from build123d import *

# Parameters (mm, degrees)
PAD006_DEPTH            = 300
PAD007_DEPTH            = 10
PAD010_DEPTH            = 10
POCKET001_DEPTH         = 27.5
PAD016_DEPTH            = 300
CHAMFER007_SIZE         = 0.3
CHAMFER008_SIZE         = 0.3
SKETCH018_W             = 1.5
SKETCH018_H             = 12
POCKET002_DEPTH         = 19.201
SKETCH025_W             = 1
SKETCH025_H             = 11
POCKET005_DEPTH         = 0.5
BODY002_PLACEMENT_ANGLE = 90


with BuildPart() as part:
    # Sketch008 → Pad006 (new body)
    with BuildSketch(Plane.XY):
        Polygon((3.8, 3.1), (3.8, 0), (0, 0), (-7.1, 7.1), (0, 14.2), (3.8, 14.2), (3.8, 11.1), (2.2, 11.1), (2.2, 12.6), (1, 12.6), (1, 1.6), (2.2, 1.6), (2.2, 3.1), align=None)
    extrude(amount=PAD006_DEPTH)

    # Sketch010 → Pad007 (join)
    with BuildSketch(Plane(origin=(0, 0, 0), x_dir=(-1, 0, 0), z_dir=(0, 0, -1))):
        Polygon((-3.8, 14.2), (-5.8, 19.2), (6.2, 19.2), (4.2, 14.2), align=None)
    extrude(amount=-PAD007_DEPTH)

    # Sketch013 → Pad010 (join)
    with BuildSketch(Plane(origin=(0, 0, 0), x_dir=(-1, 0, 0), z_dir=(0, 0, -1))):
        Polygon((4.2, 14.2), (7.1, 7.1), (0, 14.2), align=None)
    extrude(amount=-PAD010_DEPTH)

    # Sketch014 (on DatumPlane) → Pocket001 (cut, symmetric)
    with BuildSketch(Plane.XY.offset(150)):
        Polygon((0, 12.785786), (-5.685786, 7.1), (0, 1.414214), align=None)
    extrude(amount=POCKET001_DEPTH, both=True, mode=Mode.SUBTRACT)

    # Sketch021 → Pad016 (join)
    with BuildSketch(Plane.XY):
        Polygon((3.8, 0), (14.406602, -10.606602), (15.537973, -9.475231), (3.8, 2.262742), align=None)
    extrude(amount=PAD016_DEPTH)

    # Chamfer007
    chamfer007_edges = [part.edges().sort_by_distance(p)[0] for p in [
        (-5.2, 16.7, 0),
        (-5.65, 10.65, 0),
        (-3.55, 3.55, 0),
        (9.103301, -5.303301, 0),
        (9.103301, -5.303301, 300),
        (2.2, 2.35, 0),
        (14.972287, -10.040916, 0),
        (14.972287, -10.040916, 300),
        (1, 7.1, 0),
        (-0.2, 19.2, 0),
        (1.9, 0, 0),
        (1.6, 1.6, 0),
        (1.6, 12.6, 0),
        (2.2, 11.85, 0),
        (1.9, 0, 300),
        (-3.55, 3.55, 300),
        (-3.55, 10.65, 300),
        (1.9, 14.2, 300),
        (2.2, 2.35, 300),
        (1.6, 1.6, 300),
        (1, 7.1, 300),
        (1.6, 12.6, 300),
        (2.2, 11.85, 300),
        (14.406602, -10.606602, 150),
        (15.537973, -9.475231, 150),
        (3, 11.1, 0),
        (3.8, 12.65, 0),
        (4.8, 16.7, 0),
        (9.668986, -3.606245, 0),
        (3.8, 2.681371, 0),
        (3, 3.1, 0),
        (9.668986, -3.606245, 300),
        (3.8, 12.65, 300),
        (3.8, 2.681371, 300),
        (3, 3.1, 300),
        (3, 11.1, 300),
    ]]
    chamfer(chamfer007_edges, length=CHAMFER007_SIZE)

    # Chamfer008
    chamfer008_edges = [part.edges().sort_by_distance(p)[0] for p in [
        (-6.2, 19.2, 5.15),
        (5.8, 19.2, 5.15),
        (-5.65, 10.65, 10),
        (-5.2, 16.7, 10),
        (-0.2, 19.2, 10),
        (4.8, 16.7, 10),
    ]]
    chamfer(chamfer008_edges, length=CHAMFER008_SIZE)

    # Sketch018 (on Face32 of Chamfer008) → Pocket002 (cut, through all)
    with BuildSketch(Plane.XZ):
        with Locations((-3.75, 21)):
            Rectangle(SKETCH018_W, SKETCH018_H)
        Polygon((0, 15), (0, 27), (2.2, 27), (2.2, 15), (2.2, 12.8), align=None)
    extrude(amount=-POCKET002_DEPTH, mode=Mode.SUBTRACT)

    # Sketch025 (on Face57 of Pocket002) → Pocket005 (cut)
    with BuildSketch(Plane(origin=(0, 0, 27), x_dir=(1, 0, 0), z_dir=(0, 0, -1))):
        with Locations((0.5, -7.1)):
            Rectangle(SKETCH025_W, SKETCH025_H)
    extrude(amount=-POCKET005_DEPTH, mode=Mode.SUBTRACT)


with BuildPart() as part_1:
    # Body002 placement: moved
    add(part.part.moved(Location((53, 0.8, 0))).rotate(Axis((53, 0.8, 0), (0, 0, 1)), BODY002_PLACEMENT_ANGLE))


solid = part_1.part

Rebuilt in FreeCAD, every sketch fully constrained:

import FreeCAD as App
import Part
import Sketcher
from FreeCAD import Vector
Q = App.Units.Quantity


def edges_at(feature, points):
    """Names of the edges that pass closest to the given points."""
    edges = feature.Shape.Edges
    near = lambda p: min(range(len(edges)), key=lambda i: edges[i].distToShape(Part.Vertex(*p))[0])
    return sorted({f"Edge{near(p) + 1}" for p in points})


def add_polygon(sketch, points):
    """Adds a closed chain of lines whose ends are joined by coincident constraints."""
    first, n = sketch.GeometryCount, len(points)
    for a, b in zip(points, points[1:] + points[:1]):
        sketch.addGeometry(Part.LineSegment(App.Vector(*a, 0), App.Vector(*b, 0)), False)
    for i in range(n):
        sketch.addConstraint(Sketcher.Constraint("Coincident", first + i, 2, first + (i + 1) % n, 1))

doc = App.newDocument("Part")
body = doc.addObject("PartDesign::Body", "Body")

# Sketch on XY plane
sketch1 = body.newObject("Sketcher::SketchObject", "Sketch")
sketch1.AttachmentSupport = (doc.getObject("XY_Plane"), [""])
sketch1.MapMode = "FlatFace"
add_polygon(sketch1, [(3.8, 0), (3.8, 3.1), (2.2, 3.1), (2.2, 1.6), (1, 1.6), (1, 12.6), (2.2, 12.6), (2.2, 11.1), (3.8, 11.1), (3.8, 14.2), (0, 14.2), (-7.1, 7.1), (0, 0)])  # lines 0-12
sketch1.addConstraint(Sketcher.Constraint("Vertical", 0))
sketch1.addConstraint(Sketcher.Constraint("Horizontal", 1))
sketch1.addConstraint(Sketcher.Constraint("Vertical", 2))
sketch1.addConstraint(Sketcher.Constraint("Horizontal", 3))
sketch1.addConstraint(Sketcher.Constraint("Vertical", 4))
sketch1.addConstraint(Sketcher.Constraint("Horizontal", 5))
sketch1.addConstraint(Sketcher.Constraint("Vertical", 6))
sketch1.addConstraint(Sketcher.Constraint("Horizontal", 7))
sketch1.addConstraint(Sketcher.Constraint("Vertical", 8))
sketch1.addConstraint(Sketcher.Constraint("Horizontal", 9))
sketch1.addConstraint(Sketcher.Constraint("Horizontal", 12))
sketch1.addConstraint(Sketcher.Constraint("Coincident", 11, 2, -1, 1))
sketch1.addConstraint(Sketcher.Constraint("PointOnObject", 9, 2, -2))
sketch1.addConstraint(Sketcher.Constraint("Perpendicular", 10, 11))
sketch1.addConstraint(Sketcher.Constraint("Vertical", 2, 2, 5, 2))
sketch1.addConstraint(Sketcher.Constraint("Vertical", 0, 2, 7, 2))
sketch1.addConstraint(Sketcher.Constraint("Equal", 2, 6))
sketch1.addConstraint(Sketcher.Constraint("Equal", 0, 8))
sketch1.addConstraint(Sketcher.Constraint("Equal", 10, 11))
sketch1.addConstraint(Sketcher.Constraint("DistanceY", 4, 1, 4, 2, 11.0))
sketch1.addConstraint(Sketcher.Constraint("DistanceX", 1, 2, 1, 1, 1.6))
sketch1.addConstraint(Sketcher.Constraint("DistanceX", 3, 2, 3, 1, 1.2))
sketch1.addConstraint(Sketcher.Constraint("DistanceX", 9, 2, 9, 1, 3.8))
sketch1.addConstraint(Sketcher.Constraint("DistanceY", 0, 1, 0, 2, 3.1))
sketch1.addConstraint(Sketcher.Constraint("DistanceY", 2, 2, 2, 1, 1.5))
pad1 = body.newObject("PartDesign::Pad", "Pad")
pad1.Profile = sketch1
pad1.Length = 300

# Sketch on XY plane
sketch2 = body.newObject("Sketcher::SketchObject", "Sketch001")
sketch2.AttachmentSupport = (doc.getObject("XY_Plane"), [""])
sketch2.MapMode = "FlatFace"
add_polygon(sketch2, [(5.8, 19.2), (3.8, 14.2), (-4.2, 14.2), (-6.2, 19.2)])  # lines 0-3
sketch2.addConstraint(Sketcher.Constraint("Horizontal", 1))
sketch2.addConstraint(Sketcher.Constraint("Horizontal", 3))
sketch2.addConstraint(Sketcher.Constraint("Equal", 0, 2))
sketch2.addConstraint(Sketcher.Constraint("DistanceX", 1, 2, 1, 1, 8.0))
sketch2.addConstraint(Sketcher.Constraint("DistanceX", 3, 1, 3, 2, 12.0))
sketch2.addConstraint(Sketcher.Constraint("DistanceY", 1, 2, 2, 2, 5.0))
sketch2.addConstraint(Sketcher.Constraint("DistanceX", -1, 1, 0, 2, 3.8))
sketch2.addConstraint(Sketcher.Constraint("DistanceY", -1, 1, 0, 2, 14.2))
pad2 = body.newObject("PartDesign::Pad", "Pad001")
pad2.Profile = sketch2
pad2.Length = 10

# Sketch on XY plane
sketch3 = body.newObject("Sketcher::SketchObject", "Sketch002")
sketch3.AttachmentSupport = (doc.getObject("XY_Plane"), [""])
sketch3.MapMode = "FlatFace"
add_polygon(sketch3, [(-7.1, 7.1), (-4.2, 14.2), (0, 14.2)])  # lines 0-2
sketch3.addConstraint(Sketcher.Constraint("Horizontal", 1))
sketch3.addConstraint(Sketcher.Constraint("PointOnObject", 1, 2, -2))
sketch3.addConstraint(Sketcher.Constraint("Angle", 2, Q("-135 deg")))
sketch3.addConstraint(Sketcher.Constraint("DistanceX", 1, 1, 1, 2, 4.2))
sketch3.addConstraint(Sketcher.Constraint("DistanceY", -1, 1, 0, 2, 14.2))
sketch3.addConstraint(Sketcher.Constraint("DistanceX", 2, 2, -1, 1, 7.1))
pad3 = body.newObject("PartDesign::Pad", "Pad002")
pad3.Profile = sketch3
pad3.Length = 10

# Sketch on XY plane
sketch4 = body.newObject("Sketcher::SketchObject", "Sketch003")
sketch4.AttachmentSupport = (doc.getObject("XY_Plane"), [""])
sketch4.MapMode = "FlatFace"
sketch4.AttachmentOffset = App.Placement(Vector(0, 0, 150), App.Rotation())
add_polygon(sketch4, [(0, 12.785786), (-5.685786, 7.1), (0, 1.414214)])  # lines 0-2
sketch4.addConstraint(Sketcher.Constraint("Vertical", 2))
sketch4.addConstraint(Sketcher.Constraint("PointOnObject", 1, 2, -2))
sketch4.addConstraint(Sketcher.Constraint("Perpendicular", 0, 1))
sketch4.addConstraint(Sketcher.Constraint("Equal", 0, 1))
sketch4.addConstraint(Sketcher.Constraint("DistanceY", -1, 1, 0, 2, 7.1))
sketch4.addConstraint(Sketcher.Constraint("DistanceY", 2, 1, 2, 2, 11.371572))
pocket1 = body.newObject("PartDesign::Pocket", "Pocket")
pocket1.Profile = sketch4
pocket1.Length = 55
pocket1.Midplane = True

# Sketch on XY plane
sketch5 = body.newObject("Sketcher::SketchObject", "Sketch004")
sketch5.AttachmentSupport = (doc.getObject("XY_Plane"), [""])
sketch5.MapMode = "FlatFace"
add_polygon(sketch5, [(3.8, 0), (14.406602, -10.606602), (15.537973, -9.475231), (3.8, 2.262742)])  # lines 0-3
sketch5.addConstraint(Sketcher.Constraint("Vertical", 3))
sketch5.addConstraint(Sketcher.Constraint("PointOnObject", 3, 2, -1))
sketch5.addConstraint(Sketcher.Constraint("Perpendicular", 0, 1))
sketch5.addConstraint(Sketcher.Constraint("Perpendicular", 1, 2))
sketch5.addConstraint(Sketcher.Constraint("Angle", 0, Q("-45 deg")))
sketch5.addConstraint(Sketcher.Constraint("Distance", 0, 15.0))
sketch5.addConstraint(Sketcher.Constraint("Distance", 1, 1.6))
sketch5.addConstraint(Sketcher.Constraint("DistanceX", -1, 1, 2, 2, 3.8))
pad4 = body.newObject("PartDesign::Pad", "Pad003")
pad4.Profile = sketch5
pad4.Length = 300
doc.recompute()

chamfer = body.newObject("PartDesign::Chamfer", "Chamfer")
chamfer.Base = (pad4, edges_at(pad4, [
    (-5.2, 16.7, 0),
    (-5.65, 10.65, 0),
    (-3.55, 3.55, 0),
    (9.103, -5.303, 0),
    (9.103, -5.303, 300),
    (2.2, 2.35, 0),
    (14.972, -10.041, 0),
    (14.972, -10.041, 300),
    (1, 7.1, 0),
    (-0.2, 19.2, 0),
    (1.9, 0, 0),
    (1.6, 1.6, 0),
    (1.6, 12.6, 0),
    (2.2, 11.85, 0),
    (1.9, 0, 300),
    (-3.55, 3.55, 300),
    (-3.55, 10.65, 300),
    (1.9, 14.2, 300),
    (2.2, 2.35, 300),
    (1.6, 1.6, 300),
    (1, 7.1, 300),
    (1.6, 12.6, 300),
    (2.2, 11.85, 300),
    (14.407, -10.607, 150),
    (15.538, -9.475, 150),
    (3, 11.1, 0),
    (3.8, 12.65, 0),
    (4.8, 16.7, 0),
    (9.669, -3.606, 0),
    (3.8, 2.681, 0),
    (3, 3.1, 0),
    (9.669, -3.606, 300),
    (3.8, 12.65, 300),
    (3.8, 2.681, 300),
    (3, 3.1, 300),
    (3, 11.1, 300),
]))
chamfer.Size = 0.3
doc.recompute()

chamfer2 = body.newObject("PartDesign::Chamfer", "Chamfer001")
chamfer2.Base = (chamfer, edges_at(chamfer, [
    (-6.2, 19.2, 5.15),
    (5.8, 19.2, 5.15),
    (-5.65, 10.65, 10),
    (-5.2, 16.7, 10),
    (-0.2, 19.2, 10),
    (4.8, 16.7, 10),
]))
chamfer2.Size = 0.3

# Sketch on XZ plane
sketch6 = body.newObject("Sketcher::SketchObject", "Sketch005")
sketch6.AttachmentSupport = (doc.getObject("XZ_Plane"), [""])
sketch6.MapMode = "FlatFace"
add_polygon(sketch6, [(-4.5, 27), (-4.5, 15), (-3, 15), (-3, 27)])  # lines 0-3
add_polygon(sketch6, [(0, 27), (0, 15), (2.2, 12.8), (2.2, 27)])  # lines 4-7
sketch6.addConstraint(Sketcher.Constraint("Vertical", 0))
sketch6.addConstraint(Sketcher.Constraint("Horizontal", 1))
sketch6.addConstraint(Sketcher.Constraint("Vertical", 2))
sketch6.addConstraint(Sketcher.Constraint("Horizontal", 3))
sketch6.addConstraint(Sketcher.Constraint("Vertical", 4))
sketch6.addConstraint(Sketcher.Constraint("Vertical", 6))
sketch6.addConstraint(Sketcher.Constraint("Horizontal", 7))
sketch6.addConstraint(Sketcher.Constraint("PointOnObject", 4, 2, -2))
sketch6.addConstraint(Sketcher.Constraint("Horizontal", 1, 2, 4, 2))
sketch6.addConstraint(Sketcher.Constraint("Horizontal", 3, 2, 6, 2))
sketch6.addConstraint(Sketcher.Constraint("DistanceY", 0, 2, 0, 1, 12.0))
sketch6.addConstraint(Sketcher.Constraint("Angle", 5, Q("-45 deg")))
sketch6.addConstraint(Sketcher.Constraint("DistanceX", 1, 1, 1, 2, 1.5))
sketch6.addConstraint(Sketcher.Constraint("DistanceX", 7, 2, 7, 1, 2.2))
sketch6.addConstraint(Sketcher.Constraint("DistanceY", -1, 1, 0, 2, 15.0))
sketch6.addConstraint(Sketcher.Constraint("DistanceX", 1, 2, -1, 1, 3.0))
pocket2 = body.newObject("PartDesign::Pocket", "Pocket001")
pocket2.Profile = sketch6
pocket2.Type = "ThroughAll"

# Sketch on XY plane
sketch7 = body.newObject("Sketcher::SketchObject", "Sketch006")
sketch7.AttachmentSupport = (doc.getObject("XY_Plane"), [""])
sketch7.MapMode = "FlatFace"
sketch7.AttachmentOffset = App.Placement(Vector(0, 0, 27), App.Rotation())
add_polygon(sketch7, [(0, 1.6), (0, 12.6), (1, 12.6), (1, 1.6)])  # lines 0-3
sketch7.addConstraint(Sketcher.Constraint("Vertical", 0))
sketch7.addConstraint(Sketcher.Constraint("Horizontal", 1))
sketch7.addConstraint(Sketcher.Constraint("Vertical", 2))
sketch7.addConstraint(Sketcher.Constraint("Horizontal", 3))
sketch7.addConstraint(Sketcher.Constraint("PointOnObject", 0, 2, -2))
sketch7.addConstraint(Sketcher.Constraint("DistanceX", 1, 1, 1, 2, 1.0))
sketch7.addConstraint(Sketcher.Constraint("DistanceY", 0, 1, 0, 2, 11.0))
sketch7.addConstraint(Sketcher.Constraint("DistanceY", -1, 1, 0, 2, 12.6))
pocket3 = body.newObject("PartDesign::Pocket", "Pocket002")
pocket3.Profile = sketch7
pocket3.Length = 0.5
pocket3.Reversed = True
body2 = doc.addObject("PartDesign::Body", "Body001")
doc.recompute()

body.Placement = App.Placement(Vector(53, 0.8, 0), App.Rotation(Vector(0, 0, 1), 90))
boolean = body2.newObject("PartDesign::Boolean", "Boolean")
boolean.Type = "Fuse"
boolean.addObjects([body])

doc.recompute()
